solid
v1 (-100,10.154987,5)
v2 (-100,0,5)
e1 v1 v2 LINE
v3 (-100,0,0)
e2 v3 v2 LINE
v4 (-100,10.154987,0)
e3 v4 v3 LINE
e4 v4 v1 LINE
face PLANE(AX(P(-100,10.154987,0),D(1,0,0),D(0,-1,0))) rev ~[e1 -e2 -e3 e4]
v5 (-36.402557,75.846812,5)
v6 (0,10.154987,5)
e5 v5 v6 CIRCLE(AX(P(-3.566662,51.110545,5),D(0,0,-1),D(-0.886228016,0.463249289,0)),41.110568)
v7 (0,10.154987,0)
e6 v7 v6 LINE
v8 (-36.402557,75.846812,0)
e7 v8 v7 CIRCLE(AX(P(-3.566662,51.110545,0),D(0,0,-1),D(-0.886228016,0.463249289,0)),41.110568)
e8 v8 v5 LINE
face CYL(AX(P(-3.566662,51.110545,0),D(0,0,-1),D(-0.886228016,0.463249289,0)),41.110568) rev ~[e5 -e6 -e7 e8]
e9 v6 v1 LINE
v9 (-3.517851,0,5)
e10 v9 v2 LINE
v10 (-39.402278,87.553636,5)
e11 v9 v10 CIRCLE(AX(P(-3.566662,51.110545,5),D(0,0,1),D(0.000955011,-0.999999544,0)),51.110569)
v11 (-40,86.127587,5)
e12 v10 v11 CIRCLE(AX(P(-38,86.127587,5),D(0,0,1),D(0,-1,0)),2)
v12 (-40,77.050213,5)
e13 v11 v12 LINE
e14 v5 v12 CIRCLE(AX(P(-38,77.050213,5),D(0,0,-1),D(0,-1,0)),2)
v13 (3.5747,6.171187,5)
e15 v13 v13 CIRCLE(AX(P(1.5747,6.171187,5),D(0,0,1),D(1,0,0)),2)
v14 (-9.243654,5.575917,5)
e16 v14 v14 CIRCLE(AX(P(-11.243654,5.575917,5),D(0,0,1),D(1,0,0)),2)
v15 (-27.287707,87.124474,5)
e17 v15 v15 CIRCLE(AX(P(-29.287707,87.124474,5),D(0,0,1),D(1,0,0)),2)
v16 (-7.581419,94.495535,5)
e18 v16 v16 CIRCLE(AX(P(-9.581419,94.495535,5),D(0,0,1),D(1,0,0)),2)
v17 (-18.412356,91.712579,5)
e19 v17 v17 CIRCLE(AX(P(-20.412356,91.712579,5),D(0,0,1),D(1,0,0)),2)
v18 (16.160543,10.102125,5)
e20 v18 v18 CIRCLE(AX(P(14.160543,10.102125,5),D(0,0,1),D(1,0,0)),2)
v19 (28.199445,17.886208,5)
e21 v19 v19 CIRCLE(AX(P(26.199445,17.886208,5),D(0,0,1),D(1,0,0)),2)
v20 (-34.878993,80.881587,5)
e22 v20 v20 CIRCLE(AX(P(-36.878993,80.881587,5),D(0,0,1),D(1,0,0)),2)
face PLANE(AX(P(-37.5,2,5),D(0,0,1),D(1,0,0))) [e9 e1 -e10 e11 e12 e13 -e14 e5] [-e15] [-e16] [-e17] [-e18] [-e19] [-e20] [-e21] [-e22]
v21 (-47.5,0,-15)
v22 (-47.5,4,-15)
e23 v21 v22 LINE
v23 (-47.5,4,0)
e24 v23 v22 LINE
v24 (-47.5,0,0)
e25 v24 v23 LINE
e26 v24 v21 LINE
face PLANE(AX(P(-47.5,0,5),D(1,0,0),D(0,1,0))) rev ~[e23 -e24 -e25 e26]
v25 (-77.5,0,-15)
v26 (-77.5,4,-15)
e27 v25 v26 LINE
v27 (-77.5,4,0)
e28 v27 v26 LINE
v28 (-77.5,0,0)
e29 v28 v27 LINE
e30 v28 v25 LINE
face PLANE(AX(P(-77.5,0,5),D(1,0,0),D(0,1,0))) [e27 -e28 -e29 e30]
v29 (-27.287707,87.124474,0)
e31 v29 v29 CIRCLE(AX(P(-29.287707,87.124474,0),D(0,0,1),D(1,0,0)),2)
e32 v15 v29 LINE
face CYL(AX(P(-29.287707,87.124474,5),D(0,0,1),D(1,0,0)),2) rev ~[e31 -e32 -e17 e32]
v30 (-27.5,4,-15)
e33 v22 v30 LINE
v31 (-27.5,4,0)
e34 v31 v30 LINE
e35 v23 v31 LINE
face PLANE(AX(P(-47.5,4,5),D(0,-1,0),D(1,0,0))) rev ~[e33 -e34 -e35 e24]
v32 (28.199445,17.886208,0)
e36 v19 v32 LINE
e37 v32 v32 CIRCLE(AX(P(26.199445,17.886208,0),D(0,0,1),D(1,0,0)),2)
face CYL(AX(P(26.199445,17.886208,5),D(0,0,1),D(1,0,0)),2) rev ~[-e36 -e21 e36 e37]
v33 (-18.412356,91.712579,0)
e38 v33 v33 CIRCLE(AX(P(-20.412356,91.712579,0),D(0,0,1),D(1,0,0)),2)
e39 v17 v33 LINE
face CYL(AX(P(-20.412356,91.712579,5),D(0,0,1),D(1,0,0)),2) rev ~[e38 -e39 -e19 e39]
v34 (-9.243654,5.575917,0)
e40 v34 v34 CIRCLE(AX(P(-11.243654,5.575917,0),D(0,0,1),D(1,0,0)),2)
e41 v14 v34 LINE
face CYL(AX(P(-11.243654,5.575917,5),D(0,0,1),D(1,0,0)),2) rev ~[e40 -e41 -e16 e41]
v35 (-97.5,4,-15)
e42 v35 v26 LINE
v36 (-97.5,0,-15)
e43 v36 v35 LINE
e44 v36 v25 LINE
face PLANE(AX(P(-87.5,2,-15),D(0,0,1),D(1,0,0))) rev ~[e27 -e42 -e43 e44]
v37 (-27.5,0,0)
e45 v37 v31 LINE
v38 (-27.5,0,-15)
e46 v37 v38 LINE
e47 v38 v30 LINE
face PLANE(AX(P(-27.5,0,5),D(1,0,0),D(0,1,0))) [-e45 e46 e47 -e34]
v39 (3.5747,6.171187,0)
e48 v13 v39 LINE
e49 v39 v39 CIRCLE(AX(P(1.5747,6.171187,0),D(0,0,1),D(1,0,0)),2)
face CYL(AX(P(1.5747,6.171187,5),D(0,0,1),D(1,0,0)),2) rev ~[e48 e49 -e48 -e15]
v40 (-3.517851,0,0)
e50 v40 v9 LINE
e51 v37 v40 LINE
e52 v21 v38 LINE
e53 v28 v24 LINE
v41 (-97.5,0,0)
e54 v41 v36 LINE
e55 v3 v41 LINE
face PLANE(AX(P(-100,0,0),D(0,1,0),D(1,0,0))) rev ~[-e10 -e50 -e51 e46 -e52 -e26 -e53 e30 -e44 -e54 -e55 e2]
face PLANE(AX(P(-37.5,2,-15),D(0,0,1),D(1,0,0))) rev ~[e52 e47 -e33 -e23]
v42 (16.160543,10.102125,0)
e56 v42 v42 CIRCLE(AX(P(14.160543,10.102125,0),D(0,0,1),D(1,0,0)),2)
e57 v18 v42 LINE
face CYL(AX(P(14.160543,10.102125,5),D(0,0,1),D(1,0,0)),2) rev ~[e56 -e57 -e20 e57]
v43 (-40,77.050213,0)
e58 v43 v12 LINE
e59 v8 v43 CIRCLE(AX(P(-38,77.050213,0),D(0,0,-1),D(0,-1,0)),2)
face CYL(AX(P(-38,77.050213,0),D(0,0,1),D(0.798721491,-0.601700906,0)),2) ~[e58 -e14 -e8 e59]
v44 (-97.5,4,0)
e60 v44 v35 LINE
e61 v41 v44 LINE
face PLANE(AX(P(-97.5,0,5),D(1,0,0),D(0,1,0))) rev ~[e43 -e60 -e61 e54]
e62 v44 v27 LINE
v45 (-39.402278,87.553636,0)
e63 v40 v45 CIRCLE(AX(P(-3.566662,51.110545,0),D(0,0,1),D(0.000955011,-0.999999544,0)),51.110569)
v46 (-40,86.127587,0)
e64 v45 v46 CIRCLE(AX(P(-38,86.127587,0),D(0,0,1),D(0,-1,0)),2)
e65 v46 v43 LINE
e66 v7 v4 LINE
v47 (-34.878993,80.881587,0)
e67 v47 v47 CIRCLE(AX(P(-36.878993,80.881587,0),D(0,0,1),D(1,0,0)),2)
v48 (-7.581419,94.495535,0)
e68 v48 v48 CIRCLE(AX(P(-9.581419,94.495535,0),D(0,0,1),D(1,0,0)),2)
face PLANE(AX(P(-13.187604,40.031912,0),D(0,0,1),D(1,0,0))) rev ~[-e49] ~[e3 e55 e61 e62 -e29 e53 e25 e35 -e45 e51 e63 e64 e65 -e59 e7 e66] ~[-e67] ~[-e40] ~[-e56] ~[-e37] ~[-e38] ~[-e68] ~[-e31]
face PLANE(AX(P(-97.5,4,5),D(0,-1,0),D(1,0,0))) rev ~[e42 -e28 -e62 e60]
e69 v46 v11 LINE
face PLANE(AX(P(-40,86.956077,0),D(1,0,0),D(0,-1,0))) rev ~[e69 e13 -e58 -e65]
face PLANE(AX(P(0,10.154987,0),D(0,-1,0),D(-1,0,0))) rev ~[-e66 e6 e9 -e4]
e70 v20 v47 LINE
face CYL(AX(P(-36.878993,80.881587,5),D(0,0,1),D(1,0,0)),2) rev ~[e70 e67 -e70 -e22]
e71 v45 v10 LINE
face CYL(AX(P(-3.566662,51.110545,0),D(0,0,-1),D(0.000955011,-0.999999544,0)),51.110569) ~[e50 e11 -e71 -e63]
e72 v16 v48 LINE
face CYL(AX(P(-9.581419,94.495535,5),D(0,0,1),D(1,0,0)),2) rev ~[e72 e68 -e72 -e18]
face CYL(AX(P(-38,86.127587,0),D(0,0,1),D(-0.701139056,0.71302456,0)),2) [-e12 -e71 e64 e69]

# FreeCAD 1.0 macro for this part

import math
import FreeCAD as App
import Part
import Sketcher
from FreeCAD import Vector
Q = App.Units.Quantity


def edges_at(feature, points):
    """Names of the edges that pass closest to the given points."""
    edges = feature.Shape.Edges
    near = lambda p: min(range(len(edges)), key=lambda i: edges[i].distToShape(Part.Vertex(*p))[0])
    return sorted({f"Edge{near(p) + 1}" for p in points})


def add_polygon(sketch, points):
    """Adds a closed chain of lines whose ends are joined by coincident constraints."""
    first, n = sketch.GeometryCount, len(points)
    for a, b in zip(points, points[1:] + points[:1]):
        sketch.addGeometry(Part.LineSegment(App.Vector(*a, 0), App.Vector(*b, 0)), False)
    for i in range(n):
        sketch.addConstraint(Sketcher.Constraint("Coincident", first + i, 2, first + (i + 1) % n, 1))

doc = App.newDocument("Part")
body = doc.addObject("PartDesign::Body", "Body")

# Sketch on XY plane
sketch1 = body.newObject("Sketcher::SketchObject", "Sketch")
sketch1.AttachmentSupport = (doc.getObject("XY_Plane"), [""])
sketch1.MapMode = "FlatFace"
sketch1.addGeometry(Part.ArcOfCircle(Part.Circle(Vector(-4, 51, 0), Vector(0, 0, 1), 41), math.radians(-85), math.radians(152)), False)
sketch1.addGeometry(Part.LineSegment(Vector(0, 10, 0), Vector(-100, 10, 0)), False)
sketch1.addGeometry(Part.LineSegment(Vector(-100, 10, 0), Vector(-100, 0, 0)), False)
sketch1.addGeometry(Part.LineSegment(Vector(-100, 0, 0), Vector(-4, 0, 0)), False)
sketch1.addGeometry(Part.ArcOfCircle(Part.Circle(Vector(-4, 51, 0), Vector(0, 0, 1), 51), math.radians(-90), math.radians(135)), False)
sketch1.addGeometry(Part.LineSegment(Vector(-40, 87, 0), Vector(-40, 70, 0)), False)
sketch1.addConstraint(Sketcher.Constraint("Coincident", 0, 1, 1, 1))
sketch1.addConstraint(Sketcher.Constraint("Coincident", 1, 2, 2, 1))
sketch1.addConstraint(Sketcher.Constraint("Coincident", 2, 2, 3, 1))
sketch1.addConstraint(Sketcher.Constraint("Coincident", 3, 2, 4, 1))
sketch1.addConstraint(Sketcher.Constraint("Coincident", 4, 2, 5, 1))
sketch1.addConstraint(Sketcher.Constraint("Coincident", 5, 2, 0, 2))
sketch1.addConstraint(Sketcher.Constraint("Horizontal", 1))
sketch1.addConstraint(Sketcher.Constraint("Vertical", 2))
sketch1.addConstraint(Sketcher.Constraint("Horizontal", 3))
sketch1.addConstraint(Sketcher.Constraint("Vertical", 5))
sketch1.addConstraint(Sketcher.Constraint("Coincident", 4, 3, 0, 3))
sketch1.addConstraint(Sketcher.Constraint("PointOnObject", 0, 1, -2))
sketch1.addConstraint(Sketcher.Constraint("PointOnObject", 2, 2, -1))
sketch1.addConstraint(Sketcher.Constraint("DistanceX", 1, 2, 1, 1, Q("100 mm")))
sketch1.addConstraint(Sketcher.Constraint("DistanceX", 4, 2, -1, 1, Q("40 mm")))
sketch1.addConstraint(Sketcher.Constraint("DistanceY", 0, 1, 5, 2, Q("60 mm")))
sketch1.addConstraint(Sketcher.Constraint("Radius", 0, Q("41.110568 mm")))
sketch1.addConstraint(Sketcher.Constraint("Radius", 4, Q("51.110569 mm")))
sketch1.addConstraint(Sketcher.Constraint("DistanceX", 3, 1, 3, 2, Q("96.482149 mm")))
pad1 = body.newObject("PartDesign::Pad", "Pad")
pad1.Profile = sketch1
pad1.Length = 5
doc.recompute()

fillet = body.newObject("PartDesign::Fillet", "Fillet")
fillet.Base = (pad1, edges_at(pad1, [(-40, 70.155, 2.5), (-40, 86.956, 2.5)]))
fillet.Radius = 2

# Sketch on XY plane
sketch2 = body.newObject("Sketcher::SketchObject", "Sketch001")
sketch2.AttachmentSupport = (doc.getObject("XY_Plane"), [""])
sketch2.MapMode = "FlatFace"
sketch2.AttachmentOffset = App.Placement(Vector(0, 0, 5), App.Rotation())
sketch2.addGeometry(Part.Circle(Vector(-36.9, 80.9, 0), Vector(0, 0, 1), 2), False)
sketch2.addGeometry(Part.Circle(Vector(-20.4, 91.7, 0), Vector(0, 0, 1), 2), False)
sketch2.addGeometry(Part.Circle(Vector(-9.6, 94.5, 0), Vector(0, 0, 1), 2), False)
sketch2.addGeometry(Part.Circle(Vector(-29.3, 87.1, 0), Vector(0, 0, 1), 2), False)
sketch2.addGeometry(Part.Circle(Vector(-11.2, 5.6, 0), Vector(0, 0, 1), 2), False)
sketch2.addGeometry(Part.Circle(Vector(14.2, 10.1, 0), Vector(0, 0, 1), 2), False)
sketch2.addGeometry(Part.Circle(Vector(26.2, 17.9, 0), Vector(0, 0, 1), 2), False)
sketch2.addGeometry(Part.Circle(Vector(1.6, 6.2, 0), Vector(0, 0, 1), 2), False)
sketch2.addConstraint(Sketcher.Constraint("Equal", 0, 1))
sketch2.addConstraint(Sketcher.Constraint("Equal", 1, 2))
sketch2.addConstraint(Sketcher.Constraint("Equal", 2, 3))
sketch2.addConstraint(Sketcher.Constraint("Equal", 3, 4))
sketch2.addConstraint(Sketcher.Constraint("Equal", 4, 5))
sketch2.addConstraint(Sketcher.Constraint("Equal", 5, 6))
sketch2.addConstraint(Sketcher.Constraint("Equal", 6, 7))
sketch2.addConstraint(Sketcher.Constraint("Diameter", 0, Q("4 mm")))
sketch2.addConstraint(Sketcher.Constraint("DistanceX", -1, 1, 7, 3, Q("1.5747 mm")))
sketch2.addConstraint(Sketcher.Constraint("DistanceX", 1, 3, 5, 3, Q("34.572899 mm")))
sketch2.addConstraint(Sketcher.Constraint("DistanceX", 4, 3, 6, 3, Q("37.443099 mm")))
sketch2.addConstraint(Sketcher.Constraint("DistanceX", 1, 3, 6, 3, Q("46.611801 mm")))
sketch2.addConstraint(Sketcher.Constraint("DistanceY", 7, 3, 0, 3, Q("74.7104 mm")))
sketch2.addConstraint(Sketcher.Constraint("DistanceY", -1, 1, 1, 3, Q("91.712579 mm")))
sketch2.addConstraint(Sketcher.Constraint("DistanceX", 2, 3, -1, 1, Q("9.581419 mm")))
sketch2.addConstraint(Sketcher.Constraint("DistanceY", -1, 1, 6, 3, Q("17.886208 mm")))
sketch2.addConstraint(Sketcher.Constraint("DistanceY", 0, 3, 2, 3, Q("13.613948 mm")))
sketch2.addConstraint(Sketcher.Constraint("DistanceX", 3, 3, 1, 3, Q("8.875351 mm")))
sketch2.addConstraint(Sketcher.Constraint("DistanceX", 3, 3, 2, 3, Q("19.706288 mm")))
sketch2.addConstraint(Sketcher.Constraint("DistanceY", 3, 3, 2, 3, Q("7.371061 mm")))
sketch2.addConstraint(Sketcher.Constraint("DistanceX", 0, 3, 4, 3, Q("25.635339 mm")))
sketch2.addConstraint(Sketcher.Constraint("DistanceY", 4, 3, 0, 3, Q("75.30567 mm")))
sketch2.addConstraint(Sketcher.Constraint("DistanceY", 4, 3, 1, 3, Q("86.136662 mm")))
sketch2.addConstraint(Sketcher.Constraint("DistanceY", 5, 3, 0, 3, Q("70.779462 mm")))
pocket1 = body.newObject("PartDesign::Pocket", "Pocket")
pocket1.Profile = sketch2
pocket1.Length = 5

# Sketch on XY plane
sketch3 = body.newObject("Sketcher::SketchObject", "Sketch002")
sketch3.AttachmentSupport = (doc.getObject("XY_Plane"), [""])
sketch3.MapMode = "FlatFace"
sketch3.AttachmentOffset = App.Placement(Vector(0, 0, 5), App.Rotation())
add_polygon(sketch3, [(-47.5, 4), (-47.5, 0), (-27.5, 0), (-27.5, 4)])  # lines 0-3
add_polygon(sketch3, [(-97.5, 4), (-97.5, 0), (-77.5, 0), (-77.5, 4)])  # lines 4-7
sketch3.addConstraint(Sketcher.Constraint("Vertical", 0))
sketch3.addConstraint(Sketcher.Constraint("Horizontal", 1))
sketch3.addConstraint(Sketcher.Constraint("Vertical", 2))
sketch3.addConstraint(Sketcher.Constraint("Horizontal", 3))
sketch3.addConstraint(Sketcher.Constraint("Vertical", 4))
sketch3.addConstraint(Sketcher.Constraint("Horizontal", 5))
sketch3.addConstraint(Sketcher.Constraint("Vertical", 6))
sketch3.addConstraint(Sketcher.Constraint("Horizontal", 7))
sketch3.addConstraint(Sketcher.Constraint("PointOnObject", 0, 2, -1))
sketch3.addConstraint(Sketcher.Constraint("PointOnObject", 4, 2, -1))
sketch3.addConstraint(Sketcher.Constraint("Horizontal", 3, 2, 6, 2))
sketch3.addConstraint(Sketcher.Constraint("Equal", 3, 5))
sketch3.addConstraint(Sketcher.Constraint("DistanceX", 1, 1, 1, 2, Q("20 mm")))
sketch3.addConstraint(Sketcher.Constraint("DistanceY", 0, 2, 0, 1, Q("4 mm")))
sketch3.addConstraint(Sketcher.Constraint("DistanceX", 4, 2, 0, 2, Q("50 mm")))
sketch3.addConstraint(Sketcher.Constraint("DistanceX", 0, 2, -1, 1, Q("47.5 mm")))
pad2 = body.newObject("PartDesign::Pad", "Pad001")
pad2.Profile = sketch3
pad2.Length = 20
pad2.Reversed = True

doc.recompute()
